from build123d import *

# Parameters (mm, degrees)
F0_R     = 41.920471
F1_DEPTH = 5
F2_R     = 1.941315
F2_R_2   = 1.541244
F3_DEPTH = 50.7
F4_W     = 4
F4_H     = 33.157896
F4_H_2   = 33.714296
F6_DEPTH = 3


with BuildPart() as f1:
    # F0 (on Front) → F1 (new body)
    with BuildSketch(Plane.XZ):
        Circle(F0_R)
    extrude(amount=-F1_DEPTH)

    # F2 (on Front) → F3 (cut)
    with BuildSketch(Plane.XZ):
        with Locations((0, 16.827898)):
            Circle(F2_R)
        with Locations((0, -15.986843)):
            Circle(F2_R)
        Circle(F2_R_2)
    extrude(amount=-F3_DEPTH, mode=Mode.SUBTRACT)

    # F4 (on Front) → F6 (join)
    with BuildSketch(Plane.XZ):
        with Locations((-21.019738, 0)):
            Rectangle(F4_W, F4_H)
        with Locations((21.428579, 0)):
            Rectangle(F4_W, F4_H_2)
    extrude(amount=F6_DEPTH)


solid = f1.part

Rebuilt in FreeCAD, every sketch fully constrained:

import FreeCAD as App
import Part
import Sketcher

V = App.Vector
Q = App.Units.Quantity

doc = App.newDocument("Part")
body = doc.addObject("PartDesign::Body", "Body")

sketch1 = body.newObject("Sketcher::SketchObject", "Sketch")
sketch1.AttachmentSupport = (doc.getObject("XZ_Plane"), [""])
sketch1.MapMode = "FlatFace"
sketch1.addGeometry(Part.Circle(V(0, 0, 0), V(0, 0, 1), 42), False)
sketch1.addConstraint([
    Sketcher.Constraint("Coincident", 0, 3, -1, 1),
    Sketcher.Constraint("Diameter", 0, Q("83.840942 mm")),
])
pad1 = body.newObject("PartDesign::Pad", "Pad")
pad1.Profile = sketch1
pad1.Length = 5
pad1.Reversed = True

sketch2 = body.newObject("Sketcher::SketchObject", "Sketch001")
sketch2.AttachmentSupport = (doc.getObject("XZ_Plane"), [""])
sketch2.MapMode = "FlatFace"
sketch2.addGeometry([
    Part.Circle(V(0, 16.8, 0), V(0, 0, 1), 1.9),
    Part.Circle(V(0, -16, 0), V(0, 0, 1), 1.9),
    Part.Circle(V(0, 0, 0), V(0, 0, 1), 1.5),
], False)
sketch2.addConstraint([
    Sketcher.Constraint("Coincident", 2, 3, -1, 1),
    Sketcher.Constraint("Equal", 0, 1),
    Sketcher.Constraint("PointOnObject", 0, 3, -2),
    Sketcher.Constraint("PointOnObject", 1, 3, -2),
    Sketcher.Constraint("Diameter", 0, Q("3.88263 mm")),
    Sketcher.Constraint("Diameter", 2, Q("3.082488 mm")),
    Sketcher.Constraint("DistanceY", -1, 1, 0, 3, Q("16.827898 mm")),
    Sketcher.Constraint("DistanceY", 1, 3, 0, 3, Q("32.814741 mm")),
])
pocket1 = body.newObject("PartDesign::Pocket", "Pocket")
pocket1.Profile = sketch2
pocket1.Length = 50.7

sketch3 = body.newObject("Sketcher::SketchObject", "Sketch002")
sketch3.AttachmentSupport = (doc.getObject("XZ_Plane"), [""])
sketch3.MapMode = "FlatFace"
sketch3.addGeometry([
    Part.LineSegment(V(-23, 16.6, 0), V(-23, -16.6, 0)),
    Part.LineSegment(V(-23, -16.6, 0), V(-19, -16.6, 0)),
    Part.LineSegment(V(-19, -16.6, 0), V(-19, 16.6, 0)),
    Part.LineSegment(V(-19, 16.6, 0), V(-23, 16.6, 0)),
    Part.LineSegment(V(19.4, 16.9, 0), V(19.4, -16.9, 0)),
    Part.LineSegment(V(19.4, -16.9, 0), V(23.4, -16.9, 0)),
    Part.LineSegment(V(23.4, -16.9, 0), V(23.4, 16.9, 0)),
    Part.LineSegment(V(23.4, 16.9, 0), V(19.4, 16.9, 0)),
], False)
sketch3.addConstraint([
    Sketcher.Constraint("Coincident", 0, 2, 1, 1),
    Sketcher.Constraint("Coincident", 1, 2, 2, 1),
    Sketcher.Constraint("Coincident", 2, 2, 3, 1),
    Sketcher.Constraint("Coincident", 3, 2, 0, 1),
    Sketcher.Constraint("Coincident", 4, 2, 5, 1),
    Sketcher.Constraint("Coincident", 5, 2, 6, 1),
    Sketcher.Constraint("Coincident", 6, 2, 7, 1),
    Sketcher.Constraint("Coincident", 7, 2, 4, 1),
    Sketcher.Constraint("Vertical", 0),
    Sketcher.Constraint("Horizontal", 1),
    Sketcher.Constraint("Vertical", 2),
    Sketcher.Constraint("Horizontal", 3),
    Sketcher.Constraint("Vertical", 4),
    Sketcher.Constraint("Horizontal", 5),
    Sketcher.Constraint("Vertical", 6),
    Sketcher.Constraint("Horizontal", 7),
    Sketcher.Constraint("Equal", 3, 5),
    Sketcher.Constraint("DistanceX", 1, 1, 1, 2, Q("4 mm")),
    Sketcher.Constraint("DistanceY", 4, 2, 1, 2, Q("0.2782 mm")),
    Sketcher.Constraint("DistanceY", 2, 2, 6, 2, Q("0.2782 mm")),
    Sketcher.Constraint("DistanceY", 0, 2, 0, 1, Q("33.157896 mm")),
    Sketcher.Constraint("DistanceX", 0, 2, -1, 1, Q("23.019738 mm")),
    Sketcher.Constraint("DistanceY", 0, 2, -1, 1, Q("16.578948 mm")),
    Sketcher.Constraint("DistanceX", -1, 1, 4, 2, Q("19.428579 mm")),
])
pad2 = body.newObject("PartDesign::Pad", "Pad001")
pad2.Profile = sketch3
pad2.Length = 3

doc.recompute()
